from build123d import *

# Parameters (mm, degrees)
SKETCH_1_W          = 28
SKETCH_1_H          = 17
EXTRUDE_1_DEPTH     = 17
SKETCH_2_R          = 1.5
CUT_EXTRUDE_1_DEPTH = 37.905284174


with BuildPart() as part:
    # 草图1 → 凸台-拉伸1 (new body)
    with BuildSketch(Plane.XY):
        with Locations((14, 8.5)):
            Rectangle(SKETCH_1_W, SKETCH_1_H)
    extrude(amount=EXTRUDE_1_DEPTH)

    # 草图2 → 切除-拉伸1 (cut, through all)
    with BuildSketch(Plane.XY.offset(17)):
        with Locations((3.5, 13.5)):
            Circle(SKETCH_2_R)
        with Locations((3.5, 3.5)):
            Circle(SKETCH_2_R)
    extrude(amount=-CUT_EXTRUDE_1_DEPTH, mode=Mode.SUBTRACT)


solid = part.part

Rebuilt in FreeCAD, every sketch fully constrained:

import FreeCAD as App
import Part
import Sketcher

doc = App.newDocument("Part")
body = doc.addObject("PartDesign::Body", "Body")

sketch1 = body.newObject("Sketcher::SketchObject", "Sketch")
sketch1.AttachmentSupport = (doc.getObject("XY_Plane"), [""])
sketch1.MapMode = "FlatFace"
sketch1.addGeometry([
    Part.LineSegment(App.Vector(0, 17, 0), App.Vector(0, 0, 0)),
    Part.LineSegment(App.Vector(0, 0, 0), App.Vector(28, 0, 0)),
    Part.LineSegment(App.Vector(28, 0, 0), App.Vector(28, 17, 0)),
    Part.LineSegment(App.Vector(28, 17, 0), App.Vector(0, 17, 0)),
], False)
sketch1.addConstraint([
    Sketcher.Constraint("Coincident", 0, 2, 1, 1),
    Sketcher.Constraint("Coincident", 1, 2, 2, 1),
    Sketcher.Constraint("Coincident", 2, 2, 3, 1),
    Sketcher.Constraint("Coincident", 3, 2, 0, 1),
    Sketcher.Constraint("Vertical", 0),
    Sketcher.Constraint("Horizontal", 1),
    Sketcher.Constraint("Vertical", 2),
    Sketcher.Constraint("Horizontal", 3),
    Sketcher.Constraint("Coincident", 0, 2, -1, 1),
    Sketcher.Constraint("DistanceX", 1, 1, 1, 2, 28.0),
    Sketcher.Constraint("DistanceY", 0, 2, 0, 1, 17.0),
])
pad1 = body.newObject("PartDesign::Pad", "Pad")
pad1.Profile = sketch1
pad1.Length = 17

sketch2 = body.newObject("Sketcher::SketchObject", "Sketch001")
sketch2.AttachmentSupport = (doc.getObject("XY_Plane"), [""])
sketch2.MapMode = "FlatFace"
sketch2.AttachmentOffset = App.Placement(App.Vector(0, 0, 17), App.Rotation())
sketch2.addGeometry([
    Part.Circle(App.Vector(3.5, 13.5, 0), App.Vector(0, 0, 1), 1.5),
    Part.Circle(App.Vector(3.5, 3.5, 0), App.Vector(0, 0, 1), 1.5),
], False)
sketch2.addConstraint([
    Sketcher.Constraint("Equal", 0, 1),
    Sketcher.Constraint("Vertical", 0, 3, 1, 3),
    Sketcher.Constraint("Diameter", 0, 3.0),
    Sketcher.Constraint("DistanceY", 1, 3, 0, 3, 10.0),
    Sketcher.Constraint("DistanceX", -1, 1, 0, 3, 3.5),
    Sketcher.Constraint("DistanceY", -1, 1, 0, 3, 13.5),
])
pocket1 = body.newObject("PartDesign::Pocket", "Pocket")
pocket1.Profile = sketch2
pocket1.Type = "ThroughAll"

doc.recompute()
